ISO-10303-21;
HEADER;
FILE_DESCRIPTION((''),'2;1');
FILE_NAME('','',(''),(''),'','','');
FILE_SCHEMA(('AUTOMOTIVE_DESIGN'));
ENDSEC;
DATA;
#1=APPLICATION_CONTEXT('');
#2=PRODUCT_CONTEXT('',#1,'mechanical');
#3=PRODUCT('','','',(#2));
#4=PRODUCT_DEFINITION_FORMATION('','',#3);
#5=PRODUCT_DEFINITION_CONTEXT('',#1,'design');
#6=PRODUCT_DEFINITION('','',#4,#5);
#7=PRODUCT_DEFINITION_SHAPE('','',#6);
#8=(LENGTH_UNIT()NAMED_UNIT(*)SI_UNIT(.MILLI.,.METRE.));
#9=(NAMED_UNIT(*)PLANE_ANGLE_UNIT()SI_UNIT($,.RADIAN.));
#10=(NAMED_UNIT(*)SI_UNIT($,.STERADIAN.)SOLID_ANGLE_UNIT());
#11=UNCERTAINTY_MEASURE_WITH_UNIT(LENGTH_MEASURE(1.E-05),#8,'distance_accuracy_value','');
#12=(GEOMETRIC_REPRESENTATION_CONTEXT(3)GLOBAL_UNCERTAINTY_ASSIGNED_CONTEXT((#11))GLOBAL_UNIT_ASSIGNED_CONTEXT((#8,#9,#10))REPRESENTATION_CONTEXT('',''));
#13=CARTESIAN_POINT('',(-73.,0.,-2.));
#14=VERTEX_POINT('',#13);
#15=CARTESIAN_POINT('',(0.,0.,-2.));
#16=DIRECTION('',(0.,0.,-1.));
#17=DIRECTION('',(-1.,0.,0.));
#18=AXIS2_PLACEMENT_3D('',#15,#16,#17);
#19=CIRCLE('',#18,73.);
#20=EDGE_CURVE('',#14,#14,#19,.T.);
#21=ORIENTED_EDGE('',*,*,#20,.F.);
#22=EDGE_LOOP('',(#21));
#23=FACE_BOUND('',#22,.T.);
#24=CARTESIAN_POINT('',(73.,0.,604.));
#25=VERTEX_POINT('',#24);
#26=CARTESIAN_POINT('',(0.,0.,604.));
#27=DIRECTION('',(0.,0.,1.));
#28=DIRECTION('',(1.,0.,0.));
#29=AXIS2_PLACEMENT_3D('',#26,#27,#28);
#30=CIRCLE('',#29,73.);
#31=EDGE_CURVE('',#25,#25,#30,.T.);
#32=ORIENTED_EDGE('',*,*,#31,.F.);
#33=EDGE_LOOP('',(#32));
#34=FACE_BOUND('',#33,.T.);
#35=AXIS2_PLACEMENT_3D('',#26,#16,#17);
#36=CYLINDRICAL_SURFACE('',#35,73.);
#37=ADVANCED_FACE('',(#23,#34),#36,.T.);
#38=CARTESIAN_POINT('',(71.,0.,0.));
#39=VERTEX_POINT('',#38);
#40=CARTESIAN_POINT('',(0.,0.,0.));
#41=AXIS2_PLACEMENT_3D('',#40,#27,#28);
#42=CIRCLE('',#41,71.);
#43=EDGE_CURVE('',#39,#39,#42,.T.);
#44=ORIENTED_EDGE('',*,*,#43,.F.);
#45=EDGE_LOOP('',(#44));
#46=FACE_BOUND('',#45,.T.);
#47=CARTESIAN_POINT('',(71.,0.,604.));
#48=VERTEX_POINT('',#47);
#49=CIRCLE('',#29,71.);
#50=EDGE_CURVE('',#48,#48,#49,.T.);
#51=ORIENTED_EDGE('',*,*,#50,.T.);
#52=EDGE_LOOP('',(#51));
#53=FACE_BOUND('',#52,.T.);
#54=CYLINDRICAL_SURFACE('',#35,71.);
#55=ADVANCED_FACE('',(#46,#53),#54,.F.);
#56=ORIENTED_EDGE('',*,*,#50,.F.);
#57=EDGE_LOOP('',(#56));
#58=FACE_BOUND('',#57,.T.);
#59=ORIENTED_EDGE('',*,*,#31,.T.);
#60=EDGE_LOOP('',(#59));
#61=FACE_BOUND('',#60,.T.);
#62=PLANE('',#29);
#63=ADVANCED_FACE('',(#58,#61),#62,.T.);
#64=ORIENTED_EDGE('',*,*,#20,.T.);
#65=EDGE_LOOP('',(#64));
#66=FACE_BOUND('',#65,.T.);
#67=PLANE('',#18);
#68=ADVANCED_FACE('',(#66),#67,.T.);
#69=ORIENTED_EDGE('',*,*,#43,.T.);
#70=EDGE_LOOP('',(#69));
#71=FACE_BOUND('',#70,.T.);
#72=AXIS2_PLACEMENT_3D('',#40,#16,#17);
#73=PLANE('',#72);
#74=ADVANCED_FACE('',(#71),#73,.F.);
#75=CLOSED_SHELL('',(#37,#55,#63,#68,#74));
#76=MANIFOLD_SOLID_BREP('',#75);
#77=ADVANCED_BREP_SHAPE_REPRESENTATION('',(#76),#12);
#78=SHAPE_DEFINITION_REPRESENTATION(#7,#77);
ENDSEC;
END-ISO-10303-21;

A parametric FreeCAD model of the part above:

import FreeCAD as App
import Part
import Sketcher

doc = App.newDocument("Part")
body = doc.addObject("PartDesign::Body", "Body")

sketch1 = body.newObject("Sketcher::SketchObject", "Sketch")
sketch1.AttachmentSupport = (doc.getObject("XY_Plane"), [""])
sketch1.MapMode = "FlatFace"
sketch1.addGeometry([
    Part.Circle(App.Vector(0, 0, 0), App.Vector(0, 0, 1), 73),
    Part.Circle(App.Vector(0, 0, 0), App.Vector(0, 0, 1), 71),
], False)
sketch1.addConstraint([
    Sketcher.Constraint("Coincident", 0, 3, -1, 1),
    Sketcher.Constraint("Coincident", 1, 3, -1, 1),
    Sketcher.Constraint("Diameter", 0, 146.0),
    Sketcher.Constraint("Diameter", 1, 142.0),
])
pad1 = body.newObject("PartDesign::Pad", "Pad")
pad1.Profile = sketch1
pad1.Length = 604

sketch2 = body.newObject("Sketcher::SketchObject", "Sketch001")
sketch2.AttachmentSupport = (doc.getObject("XY_Plane"), [""])
sketch2.MapMode = "FlatFace"
sketch2.AttachmentOffset = App.Placement(App.Vector(0, 0, -2), App.Rotation())
sketch2.addGeometry(Part.Circle(App.Vector(0, 0, 0), App.Vector(0, 0, 1), 73), False)
sketch2.addConstraint([
    Sketcher.Constraint("Coincident", 0, 3, -1, 1),
    Sketcher.Constraint("Diameter", 0, 146.0),
])
pad2 = body.newObject("PartDesign::Pad", "Pad001")
pad2.Profile = sketch2
pad2.Length = 2

doc.recompute()
